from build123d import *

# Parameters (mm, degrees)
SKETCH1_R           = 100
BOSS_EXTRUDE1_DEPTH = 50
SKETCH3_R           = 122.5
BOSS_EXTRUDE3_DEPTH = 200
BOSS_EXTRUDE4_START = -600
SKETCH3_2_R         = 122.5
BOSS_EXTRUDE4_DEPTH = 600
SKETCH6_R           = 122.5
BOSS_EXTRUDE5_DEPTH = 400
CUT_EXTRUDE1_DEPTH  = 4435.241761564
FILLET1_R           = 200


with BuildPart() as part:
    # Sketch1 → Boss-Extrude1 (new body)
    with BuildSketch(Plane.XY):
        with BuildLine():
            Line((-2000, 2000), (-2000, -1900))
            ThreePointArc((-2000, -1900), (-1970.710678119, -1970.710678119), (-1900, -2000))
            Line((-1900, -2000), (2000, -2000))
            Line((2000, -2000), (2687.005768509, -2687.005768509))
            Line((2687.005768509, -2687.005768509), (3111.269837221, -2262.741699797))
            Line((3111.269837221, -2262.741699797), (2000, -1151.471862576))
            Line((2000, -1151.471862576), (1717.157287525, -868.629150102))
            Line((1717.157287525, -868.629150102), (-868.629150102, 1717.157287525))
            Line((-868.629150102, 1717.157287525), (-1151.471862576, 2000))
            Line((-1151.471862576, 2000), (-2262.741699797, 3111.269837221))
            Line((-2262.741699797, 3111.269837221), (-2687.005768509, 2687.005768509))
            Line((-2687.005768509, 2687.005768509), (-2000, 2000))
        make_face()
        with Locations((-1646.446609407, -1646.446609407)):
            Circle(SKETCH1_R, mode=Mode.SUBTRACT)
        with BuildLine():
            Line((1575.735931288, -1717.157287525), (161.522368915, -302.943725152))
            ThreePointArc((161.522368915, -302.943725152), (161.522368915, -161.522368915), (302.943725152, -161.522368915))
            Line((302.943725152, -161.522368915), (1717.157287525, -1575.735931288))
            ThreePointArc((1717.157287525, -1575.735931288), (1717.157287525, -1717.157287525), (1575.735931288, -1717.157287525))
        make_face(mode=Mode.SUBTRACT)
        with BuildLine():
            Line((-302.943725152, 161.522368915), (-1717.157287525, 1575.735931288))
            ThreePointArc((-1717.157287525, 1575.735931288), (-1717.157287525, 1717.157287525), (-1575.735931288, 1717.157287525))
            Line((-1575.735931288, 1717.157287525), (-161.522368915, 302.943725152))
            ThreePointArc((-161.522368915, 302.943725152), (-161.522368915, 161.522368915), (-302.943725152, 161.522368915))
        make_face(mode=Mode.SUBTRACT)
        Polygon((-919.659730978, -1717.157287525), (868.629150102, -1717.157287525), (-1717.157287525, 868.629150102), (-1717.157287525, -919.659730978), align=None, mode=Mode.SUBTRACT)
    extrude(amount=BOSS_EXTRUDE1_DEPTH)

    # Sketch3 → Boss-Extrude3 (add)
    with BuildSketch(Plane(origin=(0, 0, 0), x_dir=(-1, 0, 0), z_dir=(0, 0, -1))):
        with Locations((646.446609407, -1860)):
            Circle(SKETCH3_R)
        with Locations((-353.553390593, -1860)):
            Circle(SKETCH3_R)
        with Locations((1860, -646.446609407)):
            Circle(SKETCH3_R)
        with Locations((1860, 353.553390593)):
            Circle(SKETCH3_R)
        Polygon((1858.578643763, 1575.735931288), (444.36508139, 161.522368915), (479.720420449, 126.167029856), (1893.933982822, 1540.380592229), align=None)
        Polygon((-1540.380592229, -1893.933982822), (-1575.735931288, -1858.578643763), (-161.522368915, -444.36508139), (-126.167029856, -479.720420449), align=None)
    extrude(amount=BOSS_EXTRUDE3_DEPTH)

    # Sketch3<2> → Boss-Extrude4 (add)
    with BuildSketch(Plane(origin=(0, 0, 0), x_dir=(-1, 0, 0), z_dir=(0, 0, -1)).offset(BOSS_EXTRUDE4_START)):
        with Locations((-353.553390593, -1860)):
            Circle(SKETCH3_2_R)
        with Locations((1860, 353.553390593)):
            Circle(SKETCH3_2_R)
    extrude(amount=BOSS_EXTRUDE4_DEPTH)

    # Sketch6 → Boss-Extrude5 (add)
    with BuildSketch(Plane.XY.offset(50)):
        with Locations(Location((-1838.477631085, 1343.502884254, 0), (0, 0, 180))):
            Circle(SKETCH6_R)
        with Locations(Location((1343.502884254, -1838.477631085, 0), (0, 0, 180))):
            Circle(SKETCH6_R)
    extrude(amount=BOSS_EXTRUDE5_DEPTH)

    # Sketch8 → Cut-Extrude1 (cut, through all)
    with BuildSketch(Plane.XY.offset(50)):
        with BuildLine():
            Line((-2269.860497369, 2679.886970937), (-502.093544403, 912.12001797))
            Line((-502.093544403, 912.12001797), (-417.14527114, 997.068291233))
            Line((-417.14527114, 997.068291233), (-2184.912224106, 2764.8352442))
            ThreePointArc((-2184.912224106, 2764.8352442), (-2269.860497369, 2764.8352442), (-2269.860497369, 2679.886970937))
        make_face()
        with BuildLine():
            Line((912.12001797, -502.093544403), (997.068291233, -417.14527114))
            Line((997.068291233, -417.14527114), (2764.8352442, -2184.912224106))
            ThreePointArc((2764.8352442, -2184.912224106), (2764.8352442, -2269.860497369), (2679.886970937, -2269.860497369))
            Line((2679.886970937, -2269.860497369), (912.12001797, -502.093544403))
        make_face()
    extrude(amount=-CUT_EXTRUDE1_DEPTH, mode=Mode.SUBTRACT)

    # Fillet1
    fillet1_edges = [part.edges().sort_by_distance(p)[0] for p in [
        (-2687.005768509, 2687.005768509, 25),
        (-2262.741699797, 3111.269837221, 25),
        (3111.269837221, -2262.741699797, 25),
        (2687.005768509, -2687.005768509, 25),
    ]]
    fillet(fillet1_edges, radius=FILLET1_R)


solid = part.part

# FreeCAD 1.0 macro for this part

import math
import FreeCAD as App
import Part
import Sketcher

V = App.Vector
Q = App.Units.Quantity


def edges_at(feature, points):
    """Names of the edges that pass closest to the given points."""
    edges = feature.Shape.Edges
    near = lambda p: min(range(len(edges)), key=lambda i: edges[i].distToShape(Part.Vertex(*p))[0])
    return sorted({f"Edge{near(p) + 1}" for p in points})


def add_polygon(sketch, points):
    """Adds a closed chain of lines whose ends are joined by coincident constraints."""
    first, n = sketch.GeometryCount, len(points)
    for a, b in zip(points, points[1:] + points[:1]):
        sketch.addGeometry(Part.LineSegment(App.Vector(*a, 0), App.Vector(*b, 0)), False)
    for i in range(n):
        sketch.addConstraint(Sketcher.Constraint("Coincident", first + i, 2, first + (i + 1) % n, 1))

doc = App.newDocument("Part")
body = doc.addObject("PartDesign::Body", "Body")

sketch1 = doc.addObject("Sketcher::SketchObject", "Sketch")
body.addObject(sketch1)
sketch1.AttachmentSupport = (doc.XY_Plane, [""])
sketch1.MapMode = "FlatFace"
sketch1.addGeometry(Part.LineSegment(V(-2000, 2000, 0), V(-2000, -1900, 0)), False)
sketch1.addGeometry(Part.ArcOfCircle(Part.Circle(V(-1900, -1900, 0), V(0, 0, 1), 100), math.radians(180), math.radians(270)), False)
sketch1.addGeometry(Part.LineSegment(V(-1900, -2000, 0), V(2000, -2000, 0)), False)
sketch1.addGeometry(Part.LineSegment(V(2000, -2000, 0), V(2687, -2687, 0)), False)
sketch1.addGeometry(Part.LineSegment(V(2687, -2687, 0), V(3111, -2263, 0)), False)
sketch1.addGeometry(Part.LineSegment(V(3111, -2263, 0), V(2000, -1151, 0)), False)
sketch1.addGeometry(Part.LineSegment(V(2000, -1151, 0), V(1717, -869, 0)), False)
sketch1.addGeometry(Part.LineSegment(V(1717, -869, 0), V(-869, 1717, 0)), False)
sketch1.addGeometry(Part.LineSegment(V(-869, 1717, 0), V(-1151, 2000, 0)), False)
sketch1.addGeometry(Part.LineSegment(V(-1151, 2000, 0), V(-2263, 3111, 0)), False)
sketch1.addGeometry(Part.LineSegment(V(-2263, 3111, 0), V(-2687, 2687, 0)), False)
sketch1.addGeometry(Part.LineSegment(V(-2687, 2687, 0), V(-2000, 2000, 0)), False)
sketch1.addGeometry(Part.Circle(V(-1646, -1646, 0), V(0, 0, 1), 100), False)
add_polygon(sketch1, [(869, -1717), (-920, -1717), (-1717, -920), (-1717, 869)])
sketch1.addGeometry(Part.ArcOfCircle(Part.Circle(V(1646, -1646, 0), V(0, 0, 1), 100), math.radians(-135), math.radians(45)), False)
sketch1.addGeometry(Part.LineSegment(V(1576, -1717, 0), V(162, -303, 0)), False)
sketch1.addGeometry(Part.ArcOfCircle(Part.Circle(V(232, -232, 0), V(0, 0, 1), 100), math.radians(45), math.radians(225)), False)
sketch1.addGeometry(Part.LineSegment(V(303, -162, 0), V(1717, -1576, 0)), False)
sketch1.addGeometry(Part.ArcOfCircle(Part.Circle(V(-232, 232, 0), V(0, 0, 1), 100), math.radians(-135), math.radians(45)), False)
sketch1.addGeometry(Part.LineSegment(V(-303, 162, 0), V(-1717, 1576, 0)), False)
sketch1.addGeometry(Part.ArcOfCircle(Part.Circle(V(-1646, 1646, 0), V(0, 0, 1), 100), math.radians(45), math.radians(225)), False)
sketch1.addGeometry(Part.LineSegment(V(-1576, 1717, 0), V(-162, 303, 0)), False)
sketch1.addConstraint(Sketcher.Constraint("Tangent", 0, 2, 1, 1))
sketch1.addConstraint(Sketcher.Constraint("Tangent", 1, 2, 2, 1))
sketch1.addConstraint(Sketcher.Constraint("Coincident", 2, 2, 3, 1))
sketch1.addConstraint(Sketcher.Constraint("Coincident", 3, 2, 4, 1))
sketch1.addConstraint(Sketcher.Constraint("Coincident", 4, 2, 5, 1))
sketch1.addConstraint(Sketcher.Constraint("Coincident", 5, 2, 6, 1))
sketch1.addConstraint(Sketcher.Constraint("Coincident", 6, 2, 7, 1))
sketch1.addConstraint(Sketcher.Constraint("Coincident", 7, 2, 8, 1))
sketch1.addConstraint(Sketcher.Constraint("Coincident", 8, 2, 9, 1))
sketch1.addConstraint(Sketcher.Constraint("Coincident", 9, 2, 10, 1))
sketch1.addConstraint(Sketcher.Constraint("Coincident", 10, 2, 11, 1))
sketch1.addConstraint(Sketcher.Constraint("Coincident", 11, 2, 0, 1))
sketch1.addConstraint(Sketcher.Constraint("Tangent", 17, 1, 18, 1))
sketch1.addConstraint(Sketcher.Constraint("Tangent", 18, 2, 19, 2))
sketch1.addConstraint(Sketcher.Constraint("Tangent", 19, 1, 20, 1))
sketch1.addConstraint(Sketcher.Constraint("Tangent", 20, 2, 17, 2))
sketch1.addConstraint(Sketcher.Constraint("Tangent", 21, 1, 22, 1))
sketch1.addConstraint(Sketcher.Constraint("Tangent", 22, 2, 23, 2))
sketch1.addConstraint(Sketcher.Constraint("Tangent", 23, 1, 24, 1))
sketch1.addConstraint(Sketcher.Constraint("Tangent", 24, 2, 21, 2))
sketch1.addConstraint(Sketcher.Constraint("Vertical", 0))
sketch1.addConstraint(Sketcher.Constraint("Horizontal", 2))
sketch1.addConstraint(Sketcher.Constraint("Horizontal", 13))
sketch1.addConstraint(Sketcher.Constraint("Vertical", 15))
sketch1.addConstraint(Sketcher.Constraint("Equal", 1, 12))
sketch1.addConstraint(Sketcher.Constraint("Equal", 12, 17))
sketch1.addConstraint(Sketcher.Constraint("Equal", 17, 19))
sketch1.addConstraint(Sketcher.Constraint("Equal", 19, 21))
sketch1.addConstraint(Sketcher.Constraint("Equal", 21, 23))
sketch1.addConstraint(Sketcher.Constraint("Symmetric", 19, 3, 21, 3, -1, 1))
sketch1.addConstraint(Sketcher.Constraint("Symmetric", 17, 3, 23, 3, -1, 1))
sketch1.addConstraint(Sketcher.Constraint("Symmetric", 3, 2, 10, 2, -1, 1))
sketch1.addConstraint(Sketcher.Constraint("Symmetric", 2, 2, 11, 2, -1, 1))
sketch1.addConstraint(Sketcher.Constraint("Symmetric", 6, 2, 15, 2, -1, 1))
sketch1.addConstraint(Sketcher.Constraint("Symmetric", 7, 2, 16, 2, -1, 1))
sketch1.addConstraint(Sketcher.Constraint("Symmetric", 12, 3, 17, 3, -2))
sketch1.addConstraint(Sketcher.Constraint("Perpendicular", 3, 4))
sketch1.addConstraint(Sketcher.Constraint("Perpendicular", 4, 5))
sketch1.addConstraint(Sketcher.Constraint("Parallel", 5, 6))
sketch1.addConstraint(Sketcher.Constraint("Parallel", 6, 7))
sketch1.addConstraint(Sketcher.Constraint("Parallel", 7, 8))
sketch1.addConstraint(Sketcher.Constraint("Parallel", 8, 9))
sketch1.addConstraint(Sketcher.Constraint("Perpendicular", 9, 10))
sketch1.addConstraint(Sketcher.Constraint("Parallel", 11, 14))
sketch1.addConstraint(Sketcher.Constraint("Parallel", 16, 18))
sketch1.addConstraint(Sketcher.Constraint("Horizontal", 8, 2, 11, 2))
sketch1.addConstraint(Sketcher.Constraint("Horizontal", 16, 2, 17, 1))
sketch1.addConstraint(Sketcher.Constraint("Vertical", 2, 2, 5, 2))
sketch1.addConstraint(Sketcher.Constraint("Vertical", 6, 2, 20, 2))
sketch1.addConstraint(Sketcher.Constraint("Equal", 2, 0))
sketch1.addConstraint(Sketcher.Constraint("Equal", 13, 15))
sketch1.addConstraint(Sketcher.Constraint("Equal", 6, 8))
sketch1.addConstraint(Sketcher.Constraint("Diameter", 12, Q("200 mm")))
sketch1.addConstraint(Sketcher.Constraint("DistanceX", 2, 1, 2, 2, Q("3900 mm")))
sketch1.addConstraint(Sketcher.Constraint("Distance", 4, Q("600 mm")))
sketch1.addConstraint(Sketcher.Constraint("Distance", 6, Q("400 mm")))
sketch1.addConstraint(Sketcher.Constraint("Distance", 18, Q("2000 mm")))
sketch1.addConstraint(Sketcher.Constraint("DistanceX", 13, 2, 13, 1, Q("1788.288881 mm")))
sketch1.addConstraint(Sketcher.Constraint("DistanceY", 4, 2, -1, 1, Q("2262.7417 mm")))
pad1 = doc.addObject("PartDesign::Pad", "Pad")
body.addObject(pad1)
pad1.Profile = sketch1
pad1.Length = 50

sketch2 = doc.addObject("Sketcher::SketchObject", "Sketch001")
body.addObject(sketch2)
sketch2.AttachmentSupport = (doc.XY_Plane, [""])
sketch2.MapMode = "FlatFace"
sketch2.addGeometry(Part.Circle(V(-646, -1860, 0), V(0, 0, 1), 122), False)
sketch2.addGeometry(Part.Circle(V(354, -1860, 0), V(0, 0, 1), 122), False)
sketch2.addGeometry(Part.Circle(V(-1860, -646, 0), V(0, 0, 1), 122), False)
sketch2.addGeometry(Part.Circle(V(-1860, 354, 0), V(0, 0, 1), 122), False)
add_polygon(sketch2, [(-1859, 1576), (-444, 162), (-480, 126), (-1894, 1540)])
add_polygon(sketch2, [(1576, -1859), (1540, -1894), (126, -480), (162, -444)])
sketch2.addConstraint(Sketcher.Constraint("Equal", 0, 1))
sketch2.addConstraint(Sketcher.Constraint("Equal", 1, 2))
sketch2.addConstraint(Sketcher.Constraint("Equal", 2, 3))
sketch2.addConstraint(Sketcher.Constraint("Perpendicular", 4, 5))
sketch2.addConstraint(Sketcher.Constraint("Perpendicular", 5, 6))
sketch2.addConstraint(Sketcher.Constraint("Perpendicular", 6, 7))
sketch2.addConstraint(Sketcher.Constraint("Parallel", 7, 8))
sketch2.addConstraint(Sketcher.Constraint("Perpendicular", 8, 9))
sketch2.addConstraint(Sketcher.Constraint("Perpendicular", 9, 10))
sketch2.addConstraint(Sketcher.Constraint("Perpendicular", 10, 11))
sketch2.addConstraint(Sketcher.Constraint("Horizontal", 0, 3, 1, 3))
sketch2.addConstraint(Sketcher.Constraint("Vertical", 2, 3, 3, 3))
sketch2.addConstraint(Sketcher.Constraint("Equal", 7, 8))
sketch2.addConstraint(Sketcher.Constraint("Equal", 6, 9))
sketch2.addConstraint(Sketcher.Constraint("Diameter", 0, Q("245 mm")))
sketch2.addConstraint(Sketcher.Constraint("Angle", 4, Q("-45 deg")))
sketch2.addConstraint(Sketcher.Constraint("Distance", 4, Q("2000 mm")))
sketch2.addConstraint(Sketcher.Constraint("Distance", 5, Q("50 mm")))
sketch2.addConstraint(Sketcher.Constraint("DistanceY", 0, 3, -1, 1, Q("1860 mm")))
sketch2.addConstraint(Sketcher.Constraint("DistanceX", 2, 3, -1, 1, Q("1860 mm")))
sketch2.addConstraint(Sketcher.Constraint("DistanceX", 0, 3, 1, 3, Q("1000 mm")))
sketch2.addConstraint(Sketcher.Constraint("DistanceY", 2, 3, 3, 3, Q("1000 mm")))
sketch2.addConstraint(Sketcher.Constraint("DistanceY", 3, 3, 6, 2, Q("1186.827202 mm")))
sketch2.addConstraint(Sketcher.Constraint("DistanceX", 1, 3, 8, 2, Q("1186.827202 mm")))
sketch2.addConstraint(Sketcher.Constraint("DistanceX", 0, 3, -1, 1, Q("646.446609 mm")))
sketch2.addConstraint(Sketcher.Constraint("DistanceY", 2, 3, -1, 1, Q("646.446609 mm")))
sketch2.addConstraint(Sketcher.Constraint("DistanceX", 4, 2, -1, 1, Q("444.365081 mm")))
sketch2.addConstraint(Sketcher.Constraint("DistanceY", 9, 2, -1, 1, Q("479.72042 mm")))
pad2 = doc.addObject("PartDesign::Pad", "Pad001")
body.addObject(pad2)
pad2.Profile = sketch2
pad2.Length = 200
pad2.Reversed = True

sketch3 = doc.addObject("Sketcher::SketchObject", "Sketch002")
body.addObject(sketch3)
sketch3.AttachmentSupport = (doc.XY_Plane, [""])
sketch3.MapMode = "FlatFace"
sketch3.AttachmentOffset = App.Placement(V(0, 0, 600), App.Rotation())
sketch3.addGeometry(Part.Circle(V(354, -1860, 0), V(0, 0, 1), 122), False)
sketch3.addGeometry(Part.Circle(V(-1860, 354, 0), V(0, 0, 1), 122), False)
sketch3.addConstraint(Sketcher.Constraint("Equal", 0, 1))
sketch3.addConstraint(Sketcher.Constraint("Diameter", 0, Q("245 mm")))
sketch3.addConstraint(Sketcher.Constraint("DistanceY", 0, 3, -1, 1, Q("1860 mm")))
sketch3.addConstraint(Sketcher.Constraint("DistanceX", 1, 3, -1, 1, Q("1860 mm")))
sketch3.addConstraint(Sketcher.Constraint("DistanceX", -1, 1, 0, 3, Q("353.553391 mm")))
sketch3.addConstraint(Sketcher.Constraint("DistanceY", -1, 1, 1, 3, Q("353.553391 mm")))
pad3 = doc.addObject("PartDesign::Pad", "Pad002")
body.addObject(pad3)
pad3.Profile = sketch3
pad3.Length = 600
pad3.Reversed = True

sketch4 = doc.addObject("Sketcher::SketchObject", "Sketch003")
body.addObject(sketch4)
sketch4.AttachmentSupport = (doc.XY_Plane, [""])
sketch4.MapMode = "FlatFace"
sketch4.AttachmentOffset = App.Placement(V(0, 0, 50), App.Rotation())
sketch4.addGeometry(Part.Circle(V(-1838, 1344, 0), V(0, 0, 1), 122), False)
sketch4.addGeometry(Part.Circle(V(1344, -1838, 0), V(0, 0, 1), 122), False)
sketch4.addConstraint(Sketcher.Constraint("Equal", 0, 1))
sketch4.addConstraint(Sketcher.Constraint("Diameter", 0, Q("245 mm")))
sketch4.addConstraint(Sketcher.Constraint("DistanceX", 0, 3, -1, 1, Q("1838.477631 mm")))
sketch4.addConstraint(Sketcher.Constraint("DistanceY", 1, 3, -1, 1, Q("1838.477631 mm")))
sketch4.addConstraint(Sketcher.Constraint("DistanceY", -1, 1, 0, 3, Q("1343.502884 mm")))
sketch4.addConstraint(Sketcher.Constraint("DistanceX", -1, 1, 1, 3, Q("1343.502884 mm")))
pad4 = doc.addObject("PartDesign::Pad", "Pad003")
body.addObject(pad4)
pad4.Profile = sketch4
pad4.Length = 400

sketch5 = doc.addObject("Sketcher::SketchObject", "Sketch004")
body.addObject(sketch5)
sketch5.AttachmentSupport = (doc.XY_Plane, [""])
sketch5.MapMode = "FlatFace"
sketch5.AttachmentOffset = App.Placement(V(0, 0, 50), App.Rotation())
sketch5.addGeometry(Part.LineSegment(V(-2270, 2680, 0), V(-502, 912, 0)), False)
sketch5.addGeometry(Part.LineSegment(V(-502, 912, 0), V(-417, 997, 0)), False)
sketch5.addGeometry(Part.LineSegment(V(-417, 997, 0), V(-2185, 2765, 0)), False)
sketch5.addGeometry(Part.ArcOfCircle(Part.Circle(V(-2227, 2722, 0), V(0, 0, 1), 60), math.radians(45), math.radians(225)), False)
sketch5.addGeometry(Part.LineSegment(V(997, -417, 0), V(912, -502, 0)), False)
sketch5.addGeometry(Part.LineSegment(V(912, -502, 0), V(2680, -2270, 0)), False)
sketch5.addGeometry(Part.ArcOfCircle(Part.Circle(V(2722, -2227, 0), V(0, 0, 1), 60), math.radians(-135), math.radians(45)), False)
sketch5.addGeometry(Part.LineSegment(V(2765, -2185, 0), V(997, -417, 0)), False)
sketch5.addConstraint(Sketcher.Constraint("Coincident", 0, 2, 1, 1))
sketch5.addConstraint(Sketcher.Constraint("Coincident", 1, 2, 2, 1))
sketch5.addConstraint(Sketcher.Constraint("Tangent", 2, 2, 3, 1))
sketch5.addConstraint(Sketcher.Constraint("Tangent", 3, 2, 0, 1))
sketch5.addConstraint(Sketcher.Constraint("Coincident", 4, 2, 5, 1))
sketch5.addConstraint(Sketcher.Constraint("Tangent", 5, 2, 6, 1))
sketch5.addConstraint(Sketcher.Constraint("Tangent", 6, 2, 7, 1))
sketch5.addConstraint(Sketcher.Constraint("Coincident", 7, 2, 4, 1))
sketch5.addConstraint(Sketcher.Constraint("Equal", 3, 6))
sketch5.addConstraint(Sketcher.Constraint("Perpendicular", 0, 1))
sketch5.addConstraint(Sketcher.Constraint("Perpendicular", 1, 2))
sketch5.addConstraint(Sketcher.Constraint("Perpendicular", 2, 4))
sketch5.addConstraint(Sketcher.Constraint("Perpendicular", 4, 5))
sketch5.addConstraint(Sketcher.Constraint("Parallel", 5, 7))
sketch5.addConstraint(Sketcher.Constraint("Equal", 2, 5))
sketch5.addConstraint(Sketcher.Constraint("Angle", 0, Q("-45 deg")))
sketch5.addConstraint(Sketcher.Constraint("Distance", 0, Q("2500 mm")))
sketch5.addConstraint(Sketcher.Constraint("Radius", 3, Q("60.0675 mm")))
sketch5.addConstraint(Sketcher.Constraint("DistanceX", 3, 3, -1, 1, Q("2227.386361 mm")))
sketch5.addConstraint(Sketcher.Constraint("DistanceY", 6, 3, -1, 1, Q("2227.386361 mm")))
sketch5.addConstraint(Sketcher.Constraint("DistanceY", -1, 1, 1, 2, Q("997.068291 mm")))
sketch5.addConstraint(Sketcher.Constraint("DistanceX", -1, 1, 5, 2, Q("2679.886971 mm")))
pocket1 = doc.addObject("PartDesign::Pocket", "Pocket")
body.addObject(pocket1)
pocket1.Profile = sketch5
pocket1.Type = "ThroughAll"
doc.recompute()

fillet = doc.addObject("PartDesign::Fillet", "Fillet")
body.addObject(fillet)
fillet.Base = (pocket1, edges_at(pocket1, [
    (-2687.006, 2687.006, 25),
    (-2262.742, 3111.27, 25),
    (3111.27, -2262.742, 25),
    (2687.006, -2687.006, 25),
]))
fillet.Radius = 200

doc.recompute()
